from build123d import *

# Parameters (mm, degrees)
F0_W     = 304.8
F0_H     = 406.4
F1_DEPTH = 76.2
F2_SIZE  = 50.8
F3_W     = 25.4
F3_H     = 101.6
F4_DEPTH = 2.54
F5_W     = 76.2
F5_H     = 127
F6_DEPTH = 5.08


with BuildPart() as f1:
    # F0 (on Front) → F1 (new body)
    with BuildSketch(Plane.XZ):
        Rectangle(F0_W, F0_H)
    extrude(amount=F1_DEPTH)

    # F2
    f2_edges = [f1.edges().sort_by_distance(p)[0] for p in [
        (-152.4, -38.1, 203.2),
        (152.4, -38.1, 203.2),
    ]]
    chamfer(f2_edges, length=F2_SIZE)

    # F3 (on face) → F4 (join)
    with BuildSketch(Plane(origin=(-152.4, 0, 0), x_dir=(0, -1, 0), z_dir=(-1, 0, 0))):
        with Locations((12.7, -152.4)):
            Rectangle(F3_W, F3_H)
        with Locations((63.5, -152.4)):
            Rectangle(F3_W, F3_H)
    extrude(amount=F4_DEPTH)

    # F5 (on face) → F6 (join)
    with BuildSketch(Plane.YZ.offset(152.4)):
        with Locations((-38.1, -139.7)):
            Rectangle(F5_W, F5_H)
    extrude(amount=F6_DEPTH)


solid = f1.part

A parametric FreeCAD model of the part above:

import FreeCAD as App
import Part
import Sketcher
from FreeCAD import Vector
Q = App.Units.Quantity


def edges_at(feature, points):
    """Names of the edges that pass closest to the given points."""
    edges = feature.Shape.Edges
    near = lambda p: min(range(len(edges)), key=lambda i: edges[i].distToShape(Part.Vertex(*p))[0])
    return sorted({f"Edge{near(p) + 1}" for p in points})

doc = App.newDocument("Part")
body = doc.addObject("PartDesign::Body", "Body")

sketch1 = body.newObject("Sketcher::SketchObject", "Sketch")
sketch1.AttachmentSupport = (doc.getObject("XZ_Plane"), [""])
sketch1.MapMode = "FlatFace"
sketch1.addGeometry(Part.LineSegment(Vector(-152, 203, 0), Vector(-152, -203, 0)), False)
sketch1.addGeometry(Part.LineSegment(Vector(-152, -203, 0), Vector(152, -203, 0)), False)
sketch1.addGeometry(Part.LineSegment(Vector(152, -203, 0), Vector(152, 203, 0)), False)
sketch1.addGeometry(Part.LineSegment(Vector(152, 203, 0), Vector(-152, 203, 0)), False)
sketch1.addConstraint(Sketcher.Constraint("Coincident", 0, 2, 1, 1))
sketch1.addConstraint(Sketcher.Constraint("Coincident", 1, 2, 2, 1))
sketch1.addConstraint(Sketcher.Constraint("Coincident", 2, 2, 3, 1))
sketch1.addConstraint(Sketcher.Constraint("Coincident", 3, 2, 0, 1))
sketch1.addConstraint(Sketcher.Constraint("Vertical", 0))
sketch1.addConstraint(Sketcher.Constraint("Horizontal", 1))
sketch1.addConstraint(Sketcher.Constraint("Vertical", 2))
sketch1.addConstraint(Sketcher.Constraint("Horizontal", 3))
sketch1.addConstraint(Sketcher.Constraint("Symmetric", 0, 2, 2, 2, -1, 1))
sketch1.addConstraint(Sketcher.Constraint("DistanceX", 1, 1, 1, 2, Q("12 in")))
sketch1.addConstraint(Sketcher.Constraint("DistanceY", 0, 2, 0, 1, Q("16 in")))
pad1 = body.newObject("PartDesign::Pad", "Pad")
pad1.Profile = sketch1
pad1.Length = Q("3 in")
doc.recompute()

chamfer = body.newObject("PartDesign::Chamfer", "Chamfer")
chamfer.Base = (pad1, edges_at(pad1, [(-152.4, -38.1, 203.2), (152.4, -38.1, 203.2)]))
chamfer.Size = Q("2 in")

sketch2 = body.newObject("Sketcher::SketchObject", "Sketch001")
sketch2.AttachmentSupport = (doc.getObject("YZ_Plane"), [""])
sketch2.MapMode = "FlatFace"
sketch2.AttachmentOffset = App.Placement(Vector(0, 0, -6 * 25.4), App.Rotation())
sketch2.addGeometry(Part.LineSegment(Vector(0, -102, 0), Vector(0, -203, 0)), False)
sketch2.addGeometry(Part.LineSegment(Vector(0, -203, 0), Vector(-25, -203, 0)), False)
sketch2.addGeometry(Part.LineSegment(Vector(-25, -203, 0), Vector(-25, -102, 0)), False)
sketch2.addGeometry(Part.LineSegment(Vector(-25, -102, 0), Vector(0, -102, 0)), False)
sketch2.addGeometry(Part.LineSegment(Vector(-51, -102, 0), Vector(-51, -203, 0)), False)
sketch2.addGeometry(Part.LineSegment(Vector(-51, -203, 0), Vector(-76, -203, 0)), False)
sketch2.addGeometry(Part.LineSegment(Vector(-76, -203, 0), Vector(-76, -102, 0)), False)
sketch2.addGeometry(Part.LineSegment(Vector(-76, -102, 0), Vector(-51, -102, 0)), False)
sketch2.addConstraint(Sketcher.Constraint("Coincident", 0, 2, 1, 1))
sketch2.addConstraint(Sketcher.Constraint("Coincident", 1, 2, 2, 1))
sketch2.addConstraint(Sketcher.Constraint("Coincident", 2, 2, 3, 1))
sketch2.addConstraint(Sketcher.Constraint("Coincident", 3, 2, 0, 1))
sketch2.addConstraint(Sketcher.Constraint("Coincident", 4, 2, 5, 1))
sketch2.addConstraint(Sketcher.Constraint("Coincident", 5, 2, 6, 1))
sketch2.addConstraint(Sketcher.Constraint("Coincident", 6, 2, 7, 1))
sketch2.addConstraint(Sketcher.Constraint("Coincident", 7, 2, 4, 1))
sketch2.addConstraint(Sketcher.Constraint("Vertical", 0))
sketch2.addConstraint(Sketcher.Constraint("Horizontal", 1))
sketch2.addConstraint(Sketcher.Constraint("Vertical", 2))
sketch2.addConstraint(Sketcher.Constraint("Horizontal", 3))
sketch2.addConstraint(Sketcher.Constraint("Vertical", 4))
sketch2.addConstraint(Sketcher.Constraint("Horizontal", 5))
sketch2.addConstraint(Sketcher.Constraint("Vertical", 6))
sketch2.addConstraint(Sketcher.Constraint("Horizontal", 7))
sketch2.addConstraint(Sketcher.Constraint("PointOnObject", 0, 2, -2))
sketch2.addConstraint(Sketcher.Constraint("Horizontal", 1, 2, 4, 2))
sketch2.addConstraint(Sketcher.Constraint("Horizontal", 3, 2, 6, 2))
sketch2.addConstraint(Sketcher.Constraint("Equal", 3, 5))
sketch2.addConstraint(Sketcher.Constraint("DistanceX", 1, 2, 1, 1, Q("1 in")))
sketch2.addConstraint(Sketcher.Constraint("DistanceY", 0, 2, 0, 1, Q("4 in")))
sketch2.addConstraint(Sketcher.Constraint("DistanceY", 0, 2, -1, 1, Q("8 in")))
sketch2.addConstraint(Sketcher.Constraint("DistanceX", 4, 2, -1, 1, Q("2 in")))
pad2 = body.newObject("PartDesign::Pad", "Pad001")
pad2.Profile = sketch2
pad2.Length = Q("0.1 in")
pad2.Reversed = True

sketch3 = body.newObject("Sketcher::SketchObject", "Sketch002")
sketch3.AttachmentSupport = (doc.getObject("YZ_Plane"), [""])
sketch3.MapMode = "FlatFace"
sketch3.AttachmentOffset = App.Placement(Vector(0, 0, 6 * 25.4), App.Rotation())
sketch3.addGeometry(Part.LineSegment(Vector(-76, -76, 0), Vector(-76, -203, 0)), False)
sketch3.addGeometry(Part.LineSegment(Vector(-76, -203, 0), Vector(0, -203, 0)), False)
sketch3.addGeometry(Part.LineSegment(Vector(0, -203, 0), Vector(0, -76, 0)), False)
sketch3.addGeometry(Part.LineSegment(Vector(0, -76, 0), Vector(-76, -76, 0)), False)
sketch3.addConstraint(Sketcher.Constraint("Coincident", 0, 2, 1, 1))
sketch3.addConstraint(Sketcher.Constraint("Coincident", 1, 2, 2, 1))
sketch3.addConstraint(Sketcher.Constraint("Coincident", 2, 2, 3, 1))
sketch3.addConstraint(Sketcher.Constraint("Coincident", 3, 2, 0, 1))
sketch3.addConstraint(Sketcher.Constraint("Vertical", 0))
sketch3.addConstraint(Sketcher.Constraint("Horizontal", 1))
sketch3.addConstraint(Sketcher.Constraint("Vertical", 2))
sketch3.addConstraint(Sketcher.Constraint("Horizontal", 3))
sketch3.addConstraint(Sketcher.Constraint("PointOnObject", 1, 2, -2))
sketch3.addConstraint(Sketcher.Constraint("DistanceX", 1, 1, 1, 2, Q("3 in")))
sketch3.addConstraint(Sketcher.Constraint("DistanceY", 0, 2, 0, 1, Q("5 in")))
sketch3.addConstraint(Sketcher.Constraint("DistanceY", 0, 2, -1, 1, Q("8 in")))
pad3 = body.newObject("PartDesign::Pad", "Pad002")
pad3.Profile = sketch3
pad3.Length = Q("0.2 in")

doc.recompute()
